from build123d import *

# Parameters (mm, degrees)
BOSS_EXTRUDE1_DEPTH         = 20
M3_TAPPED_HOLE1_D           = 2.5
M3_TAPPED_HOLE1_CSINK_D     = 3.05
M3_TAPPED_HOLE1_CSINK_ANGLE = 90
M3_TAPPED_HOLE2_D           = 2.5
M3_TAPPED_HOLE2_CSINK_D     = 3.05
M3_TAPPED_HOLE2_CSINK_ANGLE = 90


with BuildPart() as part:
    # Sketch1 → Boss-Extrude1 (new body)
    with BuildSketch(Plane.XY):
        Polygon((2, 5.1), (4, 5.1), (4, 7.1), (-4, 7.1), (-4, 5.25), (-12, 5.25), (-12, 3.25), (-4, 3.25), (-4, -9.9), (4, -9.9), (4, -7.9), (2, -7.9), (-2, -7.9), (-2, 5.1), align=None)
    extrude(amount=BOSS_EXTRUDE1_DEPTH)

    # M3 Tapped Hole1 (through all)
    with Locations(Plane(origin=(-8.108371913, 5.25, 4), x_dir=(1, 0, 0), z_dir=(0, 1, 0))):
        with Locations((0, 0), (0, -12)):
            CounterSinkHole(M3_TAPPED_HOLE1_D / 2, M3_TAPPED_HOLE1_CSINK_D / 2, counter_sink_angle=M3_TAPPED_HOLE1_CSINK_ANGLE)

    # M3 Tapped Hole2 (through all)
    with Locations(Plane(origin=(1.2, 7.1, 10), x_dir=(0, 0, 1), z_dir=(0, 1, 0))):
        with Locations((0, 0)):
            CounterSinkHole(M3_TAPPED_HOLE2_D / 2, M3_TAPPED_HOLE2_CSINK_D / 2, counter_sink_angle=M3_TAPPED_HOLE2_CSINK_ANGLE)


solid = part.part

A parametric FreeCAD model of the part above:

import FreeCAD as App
import Part
import Sketcher

V = App.Vector
Q = App.Units.Quantity


def add_polygon(sketch, points):
    """Adds a closed chain of lines whose ends are joined by coincident constraints."""
    first, n = sketch.GeometryCount, len(points)
    for a, b in zip(points, points[1:] + points[:1]):
        sketch.addGeometry(Part.LineSegment(App.Vector(*a, 0), App.Vector(*b, 0)), False)
    for i in range(n):
        sketch.addConstraint(Sketcher.Constraint("Coincident", first + i, 2, first + (i + 1) % n, 1))

doc = App.newDocument("Part")
params = doc.addObject("Spreadsheet::Sheet", "Params")
for row, (alias, value) in enumerate([
    ("sketch1_width", "8 mm"),
    ("sketch1_width2", "6 mm"),
    ("sketch1_height", "2 mm"),
    ("sketch1_height2", "13 mm"),
    ("sketch1_height3", "1.85 mm"),
    ("pad1_length", "20 mm"),
    ("sketch2_diameter", "2.5 mm"),
    ("hole_diameter", "2.5 mm"),
    ("hole_csink_diameter", "3.05 mm"),
    ("sketch3_diameter", "2.5 mm"),
    ("hole2_diameter", "2.5 mm"),
    ("hole2_csink_diameter", "3.05 mm"),
], start=1):
    params.set(f"A{row}", alias)
    params.set(f"B{row}", "=" + value)
    params.setAlias(f"B{row}", alias)

body = doc.addObject("PartDesign::Body", "Body")

# Sketch on XY plane
sketch1 = body.newObject("Sketcher::SketchObject", "Sketch")
sketch1.AttachmentSupport = (doc.getObject("XY_Plane"), [""])
sketch1.MapMode = "FlatFace"
add_polygon(sketch1, [(4, 5.1), (4, 7.1), (-4, 7.1), (-4, 5.2), (-12, 5.2), (-12, 3.2), (-4, 3.2), (-4, -9.9), (4, -9.9), (4, -7.9), (-2, -7.9), (-2, 5.1)])  # lines 0-11
sketch1.addConstraint([
    Sketcher.Constraint("Vertical", 0),
    Sketcher.Constraint("Horizontal", 1),
    Sketcher.Constraint("Vertical", 2),
    Sketcher.Constraint("Horizontal", 3),
    Sketcher.Constraint("Vertical", 4),
    Sketcher.Constraint("Horizontal", 5),
    Sketcher.Constraint("Vertical", 6),
    Sketcher.Constraint("Horizontal", 7),
    Sketcher.Constraint("Vertical", 8),
    Sketcher.Constraint("Horizontal", 9),
    Sketcher.Constraint("Vertical", 10),
    Sketcher.Constraint("Horizontal", 11),
    Sketcher.Constraint("Vertical", 2, 2, 5, 2),
    Sketcher.Constraint("Vertical", 0, 2, 7, 2),
    Sketcher.Constraint("Equal", 1, 3),
    Sketcher.Constraint("Equal", 0, 4),
    Sketcher.Constraint("Equal", 4, 8),
    Sketcher.Constraint("DistanceX", 1, 2, 1, 1, Q("8 mm")),
    Sketcher.Constraint("DistanceX", 9, 2, 9, 1, Q("6 mm")),
    Sketcher.Constraint("DistanceY", 0, 1, 0, 2, Q("2 mm")),
    Sketcher.Constraint("DistanceY", 10, 1, 10, 2, Q("13 mm")),
    Sketcher.Constraint("DistanceX", -1, 1, 0, 2, Q("4 mm")),
    Sketcher.Constraint("DistanceY", 2, 2, 2, 1, Q("1.85 mm")),
    Sketcher.Constraint("DistanceY", -1, 1, 0, 2, Q("7.1 mm")),
])
sketch1.setExpression("Constraints[29]", "Params.sketch1_width")
sketch1.setExpression("Constraints[30]", "Params.sketch1_width2")
sketch1.setExpression("Constraints[31]", "Params.sketch1_height")
sketch1.setExpression("Constraints[32]", "Params.sketch1_height2")
sketch1.setExpression("Constraints[34]", "Params.sketch1_height3")
pad1 = body.newObject("PartDesign::Pad", "Pad")
pad1.Profile = sketch1
pad1.setExpression("Length", "Params.pad1_length")

# Sketch on XZ plane
sketch2 = body.newObject("Sketcher::SketchObject", "Sketch001")
sketch2.AttachmentSupport = (doc.getObject("XZ_Plane"), [""])
sketch2.MapMode = "FlatFace"
sketch2.AttachmentOffset = App.Placement(V(0, 0, -5.25), App.Rotation())
sketch2.addGeometry([
    Part.Circle(V(-8.1, 4, 0), V(0, 0, 1), 1.2),
    Part.Circle(V(-8.1, 16, 0), V(0, 0, 1), 1.2),
], False)
sketch2.addConstraint([
    Sketcher.Constraint("Equal", 0, 1),
    Sketcher.Constraint("Vertical", 0, 3, 1, 3),
    Sketcher.Constraint("Diameter", 0, Q("2.5 mm")),
    Sketcher.Constraint("DistanceY", -1, 1, 0, 3, Q("4 mm")),
    Sketcher.Constraint("DistanceY", -1, 1, 1, 3, Q("16 mm")),
    Sketcher.Constraint("DistanceX", 0, 3, -1, 1, Q("8.108372 mm")),
])
sketch2.setExpression("Constraints[2]", "Params.sketch2_diameter")
doc.recompute()
hole = body.newObject("PartDesign::Hole", "Hole")
hole.Profile = sketch2
hole.ThreadType = "None"
hole.setExpression("Diameter", "Params.hole_diameter")
hole.DepthType = "ThroughAll"
hole.HoleCutType = "Countersink"
hole.setExpression("HoleCutDiameter", "Params.hole_csink_diameter")
hole.HoleCutCountersinkAngle = 90
hole.Reversed = True

# Sketch on XZ plane
sketch3 = body.newObject("Sketcher::SketchObject", "Sketch002")
sketch3.AttachmentSupport = (doc.getObject("XZ_Plane"), [""])
sketch3.MapMode = "FlatFace"
sketch3.AttachmentOffset = App.Placement(V(0, 0, -7.1), App.Rotation())
sketch3.addGeometry(Part.Circle(V(1.2, 10, 0), V(0, 0, 1), 1.2), False)
sketch3.addConstraint([
    Sketcher.Constraint("Diameter", 0, Q("2.5 mm")),
    Sketcher.Constraint("DistanceY", -1, 1, 0, 3, Q("10 mm")),
    Sketcher.Constraint("DistanceX", -1, 1, 0, 3, Q("1.2 mm")),
])
sketch3.setExpression("Constraints[0]", "Params.sketch3_diameter")
doc.recompute()
hole2 = body.newObject("PartDesign::Hole", "Hole001")
hole2.Profile = sketch3
hole2.ThreadType = "None"
hole2.setExpression("Diameter", "Params.hole2_diameter")
hole2.DepthType = "ThroughAll"
hole2.HoleCutType = "Countersink"
hole2.setExpression("HoleCutDiameter", "Params.hole2_csink_diameter")
hole2.HoleCutCountersinkAngle = 90
hole2.Reversed = True

doc.recompute()
